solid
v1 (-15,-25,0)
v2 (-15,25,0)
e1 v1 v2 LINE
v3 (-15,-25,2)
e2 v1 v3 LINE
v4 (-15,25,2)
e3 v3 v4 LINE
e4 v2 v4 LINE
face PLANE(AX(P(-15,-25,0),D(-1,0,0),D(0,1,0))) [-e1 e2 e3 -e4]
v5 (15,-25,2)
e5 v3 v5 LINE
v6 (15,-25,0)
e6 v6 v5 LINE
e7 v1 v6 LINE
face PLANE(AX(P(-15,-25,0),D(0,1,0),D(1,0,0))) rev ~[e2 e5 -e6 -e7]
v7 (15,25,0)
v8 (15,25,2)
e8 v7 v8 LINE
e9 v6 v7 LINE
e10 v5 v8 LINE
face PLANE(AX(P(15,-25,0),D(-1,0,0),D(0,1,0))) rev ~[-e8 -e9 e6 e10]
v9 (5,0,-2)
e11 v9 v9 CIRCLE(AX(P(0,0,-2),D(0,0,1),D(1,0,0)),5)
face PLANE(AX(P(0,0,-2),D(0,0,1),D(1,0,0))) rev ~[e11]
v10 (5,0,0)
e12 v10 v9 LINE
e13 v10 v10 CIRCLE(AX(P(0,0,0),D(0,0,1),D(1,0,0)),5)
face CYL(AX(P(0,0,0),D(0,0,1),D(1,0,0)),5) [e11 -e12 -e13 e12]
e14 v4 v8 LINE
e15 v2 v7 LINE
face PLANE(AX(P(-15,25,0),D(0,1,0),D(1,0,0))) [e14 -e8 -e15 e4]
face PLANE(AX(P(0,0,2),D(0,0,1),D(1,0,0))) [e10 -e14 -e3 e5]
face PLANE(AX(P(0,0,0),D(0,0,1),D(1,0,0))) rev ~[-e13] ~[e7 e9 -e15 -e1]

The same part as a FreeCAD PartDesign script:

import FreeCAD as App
import Part
import Sketcher
from FreeCAD import Vector

doc = App.newDocument("Part")
body = doc.addObject("PartDesign::Body", "Body")

# Sketch on XY plane
sketch1 = body.newObject("Sketcher::SketchObject", "Sketch")
sketch1.AttachmentSupport = (doc.getObject("XY_Plane"), [""])
sketch1.MapMode = "FlatFace"
sketch1.addGeometry([
    Part.LineSegment(Vector(-15, 25, 0), Vector(-15, -25, 0)),
    Part.LineSegment(Vector(-15, -25, 0), Vector(15, -25, 0)),
    Part.LineSegment(Vector(15, -25, 0), Vector(15, 25, 0)),
    Part.LineSegment(Vector(15, 25, 0), Vector(-15, 25, 0)),
], False)
sketch1.addConstraint([
    Sketcher.Constraint("Coincident", 0, 2, 1, 1),
    Sketcher.Constraint("Coincident", 1, 2, 2, 1),
    Sketcher.Constraint("Coincident", 2, 2, 3, 1),
    Sketcher.Constraint("Coincident", 3, 2, 0, 1),
    Sketcher.Constraint("Vertical", 0),
    Sketcher.Constraint("Horizontal", 1),
    Sketcher.Constraint("Vertical", 2),
    Sketcher.Constraint("Horizontal", 3),
    Sketcher.Constraint("Symmetric", 0, 2, 2, 2, -1, 1),
    Sketcher.Constraint("DistanceX", 1, 1, 1, 2, 30.0),
    Sketcher.Constraint("DistanceY", 0, 2, 0, 1, 50.0),
])
pad1 = body.newObject("PartDesign::Pad", "Pad")
pad1.Profile = sketch1
pad1.Length = 2

# Sketch on XY plane
sketch2 = body.newObject("Sketcher::SketchObject", "Sketch001")
sketch2.AttachmentSupport = (doc.getObject("XY_Plane"), [""])
sketch2.MapMode = "FlatFace"
sketch2.addGeometry(Part.Circle(Vector(0, 0, 0), Vector(0, 0, 1), 5), False)
sketch2.addConstraint([
    Sketcher.Constraint("Coincident", 0, 3, -1, 1),
    Sketcher.Constraint("Diameter", 0, 10.0),
])
pad2 = body.newObject("PartDesign::Pad", "Pad001")
pad2.Profile = sketch2
pad2.Length = 2
pad2.Reversed = True

doc.recompute()
